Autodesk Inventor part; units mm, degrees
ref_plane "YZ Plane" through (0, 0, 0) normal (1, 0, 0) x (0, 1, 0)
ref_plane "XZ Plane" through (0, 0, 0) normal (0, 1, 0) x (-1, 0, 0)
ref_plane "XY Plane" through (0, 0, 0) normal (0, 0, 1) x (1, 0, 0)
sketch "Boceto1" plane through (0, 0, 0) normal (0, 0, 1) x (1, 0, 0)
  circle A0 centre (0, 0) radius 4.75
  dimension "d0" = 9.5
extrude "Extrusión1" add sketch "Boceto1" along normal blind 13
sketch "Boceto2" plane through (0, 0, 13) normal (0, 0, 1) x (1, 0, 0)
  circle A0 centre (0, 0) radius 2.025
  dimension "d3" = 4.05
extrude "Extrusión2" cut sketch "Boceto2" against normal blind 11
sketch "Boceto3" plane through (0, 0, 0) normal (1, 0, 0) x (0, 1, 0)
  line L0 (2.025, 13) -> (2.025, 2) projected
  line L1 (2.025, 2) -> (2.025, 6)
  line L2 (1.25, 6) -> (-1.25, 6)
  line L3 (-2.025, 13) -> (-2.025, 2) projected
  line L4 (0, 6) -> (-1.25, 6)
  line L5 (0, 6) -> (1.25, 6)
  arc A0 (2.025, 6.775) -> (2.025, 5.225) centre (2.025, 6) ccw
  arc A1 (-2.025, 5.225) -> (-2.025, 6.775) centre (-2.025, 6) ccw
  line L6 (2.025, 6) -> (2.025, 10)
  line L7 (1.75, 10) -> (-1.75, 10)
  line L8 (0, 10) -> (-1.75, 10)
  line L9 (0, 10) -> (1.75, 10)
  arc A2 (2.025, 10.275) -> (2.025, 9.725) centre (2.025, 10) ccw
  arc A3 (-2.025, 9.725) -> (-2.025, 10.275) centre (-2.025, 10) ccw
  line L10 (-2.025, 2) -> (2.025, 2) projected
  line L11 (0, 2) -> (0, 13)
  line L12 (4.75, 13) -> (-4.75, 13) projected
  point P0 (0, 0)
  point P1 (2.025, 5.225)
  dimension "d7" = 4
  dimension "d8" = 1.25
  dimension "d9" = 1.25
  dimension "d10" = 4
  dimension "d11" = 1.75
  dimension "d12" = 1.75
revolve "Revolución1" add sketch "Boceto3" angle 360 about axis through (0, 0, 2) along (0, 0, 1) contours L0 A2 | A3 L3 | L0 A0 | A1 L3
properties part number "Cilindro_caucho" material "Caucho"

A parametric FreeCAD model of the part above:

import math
import FreeCAD as App
import Part
import Sketcher
Q = App.Units.Quantity

doc = App.newDocument("Part")
body = doc.addObject("PartDesign::Body", "Body")

# Sketch on XY plane
sketch1 = body.newObject("Sketcher::SketchObject", "Sketch")
sketch1.AttachmentSupport = (doc.getObject("XY_Plane"), [""])
sketch1.MapMode = "FlatFace"
sketch1.addGeometry(Part.Circle(App.Vector(0, 0, 0), App.Vector(0, 0, 1), 4.8), False)
sketch1.addConstraint([
    Sketcher.Constraint("Coincident", 0, 3, -1, 1),
    Sketcher.Constraint("Diameter", 0, Q("9.5 mm")),
])
pad1 = body.newObject("PartDesign::Pad", "Pad")
pad1.Profile = sketch1
pad1.Length = 13

# Sketch on XY plane
sketch2 = body.newObject("Sketcher::SketchObject", "Sketch001")
sketch2.AttachmentSupport = (doc.getObject("XY_Plane"), [""])
sketch2.MapMode = "FlatFace"
sketch2.AttachmentOffset = App.Placement(App.Vector(0, 0, 13), App.Rotation())
sketch2.addGeometry(Part.Circle(App.Vector(0, 0, 0), App.Vector(0, 0, 1), 2), False)
sketch2.addConstraint([
    Sketcher.Constraint("Coincident", 0, 3, -1, 1),
    Sketcher.Constraint("Diameter", 0, Q("4.05 mm")),
])
pocket1 = body.newObject("PartDesign::Pocket", "Pocket")
pocket1.Profile = sketch2
pocket1.Length = 11

# Sketch on YZ plane
sketch3 = body.newObject("Sketcher::SketchObject", "Sketch002")
sketch3.AttachmentSupport = (doc.getObject("YZ_Plane"), [""])
sketch3.MapMode = "FlatFace"
sketch3.addGeometry([
    Part.LineSegment(App.Vector(2.02, 9.72, 0), App.Vector(2.02, 10.28, 0)),  # 0
    Part.ArcOfCircle(Part.Circle(App.Vector(2.02, 10, 0), App.Vector(0, 0, 1), 0.28), math.radians(90), math.radians(270)),  # 1
    Part.ArcOfCircle(Part.Circle(App.Vector(-2.02, 10, 0), App.Vector(0, 0, 1), 0.28), math.radians(-90), math.radians(90)),  # 2
    Part.LineSegment(App.Vector(-2.02, 10.28, 0), App.Vector(-2.02, 9.72, 0)),  # 3
    Part.LineSegment(App.Vector(2.02, 5.22, 0), App.Vector(2.02, 6.78, 0)),  # 4
    Part.ArcOfCircle(Part.Circle(App.Vector(2.02, 6, 0), App.Vector(0, 0, 1), 0.78), math.radians(90), math.radians(270)),  # 5
    Part.ArcOfCircle(Part.Circle(App.Vector(-2.02, 6, 0), App.Vector(0, 0, 1), 0.78), math.radians(-90), math.radians(90)),  # 6
    Part.LineSegment(App.Vector(-2.02, 6.78, 0), App.Vector(-2.02, 5.22, 0)),  # 7
], False)
sketch3.addConstraint([
    Sketcher.Constraint("Coincident", 0, 1, 1, 2),
    Sketcher.Constraint("Coincident", 1, 1, 0, 2),
    Sketcher.Constraint("Coincident", 2, 1, 3, 2),
    Sketcher.Constraint("Coincident", 3, 1, 2, 2),
    Sketcher.Constraint("Coincident", 4, 1, 5, 2),
    Sketcher.Constraint("Coincident", 5, 1, 4, 2),
    Sketcher.Constraint("Coincident", 6, 1, 7, 2),
    Sketcher.Constraint("Coincident", 7, 1, 6, 2),
    Sketcher.Constraint("Vertical", 0),
    Sketcher.Constraint("Vertical", 3),
    Sketcher.Constraint("Vertical", 4),
    Sketcher.Constraint("Vertical", 7),
    Sketcher.Constraint("Equal", 1, 2),
    Sketcher.Constraint("Equal", 5, 6),
    Sketcher.Constraint("Symmetric", 1, 3, 2, 3, -2),
    Sketcher.Constraint("Symmetric", 5, 3, 6, 3, -2),
    Sketcher.Constraint("Vertical", 1, 3, 5, 3),
    Sketcher.Constraint("Vertical", 5, 3, 0, 1),
    Sketcher.Constraint("Vertical", 6, 3, 2, 1),
    Sketcher.Constraint("Vertical", 1, 1, 4, 1),
    Sketcher.Constraint("Vertical", 3, 1, 6, 1),
    Sketcher.Constraint("DistanceY", 5, 3, 1, 3, Q("4 mm")),
    Sketcher.Constraint("DistanceY", -1, 1, 1, 3, Q("10 mm")),
    Sketcher.Constraint("Radius", 1, Q("0.275 mm")),
    Sketcher.Constraint("Radius", 5, Q("0.775 mm")),
    Sketcher.Constraint("DistanceX", 2, 3, 1, 3, Q("4.05 mm")),
])
revolution = body.newObject("PartDesign::Revolution", "Revolution")
revolution.Profile = sketch3
revolution.ReferenceAxis = (sketch3, ["V_Axis"])
revolution.Angle = 360

doc.recompute()
